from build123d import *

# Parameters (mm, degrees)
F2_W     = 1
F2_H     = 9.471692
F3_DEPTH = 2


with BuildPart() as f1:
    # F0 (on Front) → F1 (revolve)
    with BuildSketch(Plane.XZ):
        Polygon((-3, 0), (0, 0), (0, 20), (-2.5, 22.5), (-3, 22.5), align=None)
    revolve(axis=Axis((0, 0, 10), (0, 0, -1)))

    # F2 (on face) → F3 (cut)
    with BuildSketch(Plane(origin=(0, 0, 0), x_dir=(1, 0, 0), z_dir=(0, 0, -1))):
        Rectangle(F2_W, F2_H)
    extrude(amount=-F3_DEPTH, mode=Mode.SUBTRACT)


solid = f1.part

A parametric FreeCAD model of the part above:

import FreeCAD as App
import Part
import Sketcher

V = App.Vector
Q = App.Units.Quantity


def add_polygon(sketch, points):
    """Adds a closed chain of lines whose ends are joined by coincident constraints."""
    first, n = sketch.GeometryCount, len(points)
    for a, b in zip(points, points[1:] + points[:1]):
        sketch.addGeometry(Part.LineSegment(App.Vector(*a, 0), App.Vector(*b, 0)), False)
    for i in range(n):
        sketch.addConstraint(Sketcher.Constraint("Coincident", first + i, 2, first + (i + 1) % n, 1))

doc = App.newDocument("Part")
body = doc.addObject("PartDesign::Body", "Body")

sketch1 = doc.addObject("Sketcher::SketchObject", "Sketch")
body.addObject(sketch1)
sketch1.AttachmentSupport = (doc.XZ_Plane, [""])
sketch1.MapMode = "FlatFace"
add_polygon(sketch1, [(-3, 0), (0, 0), (0, 20), (-2.5, 22.5), (-3, 22.5)])
sketch1.addConstraint([
    Sketcher.Constraint("Horizontal", 0),
    Sketcher.Constraint("Vertical", 1),
    Sketcher.Constraint("Horizontal", 3),
    Sketcher.Constraint("Vertical", 4),
    Sketcher.Constraint("Coincident", 0, 2, -1, 1),
    Sketcher.Constraint("DistanceX", 0, 1, 0, 2, Q("3 mm")),
    Sketcher.Constraint("DistanceY", 1, 1, 1, 2, Q("20 mm")),
    Sketcher.Constraint("Angle", 2, Q("135 deg")),
    Sketcher.Constraint("DistanceX", 3, 2, 3, 1, Q("0.5 mm")),
])
revolution = doc.addObject("PartDesign::Revolution", "Revolution")
body.addObject(revolution)
revolution.Profile = sketch1
revolution.ReferenceAxis = (sketch1, ["V_Axis"])
revolution.Angle = 360

sketch2 = doc.addObject("Sketcher::SketchObject", "Sketch001")
body.addObject(sketch2)
sketch2.AttachmentSupport = (doc.XY_Plane, [""])
sketch2.MapMode = "FlatFace"
add_polygon(sketch2, [(-0.5, -4.735846), (-0.5, 4.735846), (0.5, 4.735846), (0.5, -4.735846)])
sketch2.addConstraint([
    Sketcher.Constraint("Vertical", 0),
    Sketcher.Constraint("Horizontal", 1),
    Sketcher.Constraint("Vertical", 2),
    Sketcher.Constraint("Horizontal", 3),
    Sketcher.Constraint("Symmetric", 0, 2, 2, 2, -1, 1),
    Sketcher.Constraint("DistanceX", 1, 1, 1, 2, Q("1 mm")),
    Sketcher.Constraint("DistanceY", 0, 1, 0, 2, Q("9.471692 mm")),
])
pocket1 = doc.addObject("PartDesign::Pocket", "Pocket")
body.addObject(pocket1)
pocket1.Profile = sketch2
pocket1.Length = 2
pocket1.Reversed = True

doc.recompute()
